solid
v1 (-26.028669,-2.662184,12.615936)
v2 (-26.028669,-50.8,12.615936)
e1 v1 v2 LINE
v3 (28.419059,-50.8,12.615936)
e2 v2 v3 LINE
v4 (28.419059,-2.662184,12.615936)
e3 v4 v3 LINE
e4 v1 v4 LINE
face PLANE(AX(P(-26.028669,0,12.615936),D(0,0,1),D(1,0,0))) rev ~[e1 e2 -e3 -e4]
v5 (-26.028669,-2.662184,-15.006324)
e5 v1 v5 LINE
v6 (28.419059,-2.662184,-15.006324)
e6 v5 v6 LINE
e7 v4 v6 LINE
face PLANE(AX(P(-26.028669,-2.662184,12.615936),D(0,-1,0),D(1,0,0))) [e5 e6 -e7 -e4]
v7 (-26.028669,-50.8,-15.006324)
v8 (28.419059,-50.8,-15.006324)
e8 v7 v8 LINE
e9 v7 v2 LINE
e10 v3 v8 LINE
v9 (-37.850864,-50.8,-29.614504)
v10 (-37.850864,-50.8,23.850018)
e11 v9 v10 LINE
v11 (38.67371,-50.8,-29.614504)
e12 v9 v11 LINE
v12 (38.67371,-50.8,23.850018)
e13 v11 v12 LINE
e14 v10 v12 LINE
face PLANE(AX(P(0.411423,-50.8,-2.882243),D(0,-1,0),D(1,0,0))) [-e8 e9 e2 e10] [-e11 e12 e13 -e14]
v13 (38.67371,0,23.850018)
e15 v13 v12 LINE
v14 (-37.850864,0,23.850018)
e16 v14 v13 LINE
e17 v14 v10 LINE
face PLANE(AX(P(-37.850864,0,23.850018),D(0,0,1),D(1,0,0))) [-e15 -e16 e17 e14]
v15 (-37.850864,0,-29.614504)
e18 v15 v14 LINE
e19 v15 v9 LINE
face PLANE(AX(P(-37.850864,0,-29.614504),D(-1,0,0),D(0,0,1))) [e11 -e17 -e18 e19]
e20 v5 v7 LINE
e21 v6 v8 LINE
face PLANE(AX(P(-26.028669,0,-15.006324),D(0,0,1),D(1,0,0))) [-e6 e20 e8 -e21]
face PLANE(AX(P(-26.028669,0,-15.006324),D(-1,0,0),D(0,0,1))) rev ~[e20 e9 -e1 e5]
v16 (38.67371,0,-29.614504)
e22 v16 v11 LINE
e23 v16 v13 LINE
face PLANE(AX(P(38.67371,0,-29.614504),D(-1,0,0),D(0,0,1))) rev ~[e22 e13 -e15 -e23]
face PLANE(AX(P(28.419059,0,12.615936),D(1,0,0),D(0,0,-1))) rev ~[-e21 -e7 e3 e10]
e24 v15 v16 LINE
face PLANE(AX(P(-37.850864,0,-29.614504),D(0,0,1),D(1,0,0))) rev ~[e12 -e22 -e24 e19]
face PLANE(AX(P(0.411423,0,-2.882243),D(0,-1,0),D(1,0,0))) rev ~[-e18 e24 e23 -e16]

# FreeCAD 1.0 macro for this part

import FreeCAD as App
import Part
import Sketcher

V = App.Vector
Q = App.Units.Quantity


def add_polygon(sketch, points):
    """Adds a closed chain of lines whose ends are joined by coincident constraints."""
    first, n = sketch.GeometryCount, len(points)
    for a, b in zip(points, points[1:] + points[:1]):
        sketch.addGeometry(Part.LineSegment(App.Vector(*a, 0), App.Vector(*b, 0)), False)
    for i in range(n):
        sketch.addConstraint(Sketcher.Constraint("Coincident", first + i, 2, first + (i + 1) % n, 1))

doc = App.newDocument("Part")
body = doc.addObject("PartDesign::Body", "Body")

# Sketch on XZ plane
sketch1 = body.newObject("Sketcher::SketchObject", "Sketch")
sketch1.AttachmentSupport = (doc.getObject("XZ_Plane"), [""])
sketch1.MapMode = "FlatFace"
add_polygon(sketch1, [(-38, 24), (-38, -30), (39, -30), (39, 24)])  # lines 0-3
add_polygon(sketch1, [(-26, -15), (-26, 13), (28, 13), (28, -15)])  # lines 4-7
sketch1.addConstraint([
    Sketcher.Constraint("Vertical", 0),
    Sketcher.Constraint("Horizontal", 1),
    Sketcher.Constraint("Vertical", 2),
    Sketcher.Constraint("Horizontal", 3),
    Sketcher.Constraint("Vertical", 4),
    Sketcher.Constraint("Horizontal", 5),
    Sketcher.Constraint("Vertical", 6),
    Sketcher.Constraint("Horizontal", 7),
    Sketcher.Constraint("DistanceY", 4, 1, 4, 2, Q("27.62226 mm")),
    Sketcher.Constraint("DistanceX", 1, 1, 1, 2, Q("76.524574 mm")),
    Sketcher.Constraint("DistanceX", 5, 1, 5, 2, Q("54.447727 mm")),
    Sketcher.Constraint("DistanceY", 0, 2, 0, 1, Q("53.464523 mm")),
    Sketcher.Constraint("DistanceX", -1, 1, 1, 2, Q("38.67371 mm")),
    Sketcher.Constraint("DistanceY", -1, 1, 2, 2, Q("23.850018 mm")),
    Sketcher.Constraint("DistanceX", 4, 2, -1, 1, Q("26.028669 mm")),
    Sketcher.Constraint("DistanceY", 0, 2, 4, 2, Q("42.23044 mm")),
])
pad1 = body.newObject("PartDesign::Pad", "Pad")
pad1.Profile = sketch1
pad1.Length = 50.8

# Sketch on XY plane
sketch2 = body.newObject("Sketcher::SketchObject", "Sketch001")
sketch2.AttachmentSupport = (doc.getObject("XY_Plane"), [""])
sketch2.MapMode = "FlatFace"
sketch2.AttachmentOffset = App.Placement(V(0, 0, 12.615936), App.Rotation())
add_polygon(sketch2, [(-26, -2.7), (-26, 0), (28.4, 0), (28.4, -2.7)])  # lines 0-3
sketch2.addConstraint([
    Sketcher.Constraint("Vertical", 0),
    Sketcher.Constraint("Horizontal", 1),
    Sketcher.Constraint("Vertical", 2),
    Sketcher.Constraint("Horizontal", 3),
    Sketcher.Constraint("PointOnObject", 0, 2, -1),
    Sketcher.Constraint("DistanceX", 1, 1, 1, 2, Q("54.447727 mm")),
    Sketcher.Constraint("DistanceY", 0, 1, 0, 2, Q("2.662184 mm")),
    Sketcher.Constraint("DistanceX", 0, 2, -1, 1, Q("26.028669 mm")),
])
pad2 = body.newObject("PartDesign::Pad", "Pad001")
pad2.Profile = sketch2
pad2.Length = 30.6
pad2.Reversed = True

doc.recompute()
